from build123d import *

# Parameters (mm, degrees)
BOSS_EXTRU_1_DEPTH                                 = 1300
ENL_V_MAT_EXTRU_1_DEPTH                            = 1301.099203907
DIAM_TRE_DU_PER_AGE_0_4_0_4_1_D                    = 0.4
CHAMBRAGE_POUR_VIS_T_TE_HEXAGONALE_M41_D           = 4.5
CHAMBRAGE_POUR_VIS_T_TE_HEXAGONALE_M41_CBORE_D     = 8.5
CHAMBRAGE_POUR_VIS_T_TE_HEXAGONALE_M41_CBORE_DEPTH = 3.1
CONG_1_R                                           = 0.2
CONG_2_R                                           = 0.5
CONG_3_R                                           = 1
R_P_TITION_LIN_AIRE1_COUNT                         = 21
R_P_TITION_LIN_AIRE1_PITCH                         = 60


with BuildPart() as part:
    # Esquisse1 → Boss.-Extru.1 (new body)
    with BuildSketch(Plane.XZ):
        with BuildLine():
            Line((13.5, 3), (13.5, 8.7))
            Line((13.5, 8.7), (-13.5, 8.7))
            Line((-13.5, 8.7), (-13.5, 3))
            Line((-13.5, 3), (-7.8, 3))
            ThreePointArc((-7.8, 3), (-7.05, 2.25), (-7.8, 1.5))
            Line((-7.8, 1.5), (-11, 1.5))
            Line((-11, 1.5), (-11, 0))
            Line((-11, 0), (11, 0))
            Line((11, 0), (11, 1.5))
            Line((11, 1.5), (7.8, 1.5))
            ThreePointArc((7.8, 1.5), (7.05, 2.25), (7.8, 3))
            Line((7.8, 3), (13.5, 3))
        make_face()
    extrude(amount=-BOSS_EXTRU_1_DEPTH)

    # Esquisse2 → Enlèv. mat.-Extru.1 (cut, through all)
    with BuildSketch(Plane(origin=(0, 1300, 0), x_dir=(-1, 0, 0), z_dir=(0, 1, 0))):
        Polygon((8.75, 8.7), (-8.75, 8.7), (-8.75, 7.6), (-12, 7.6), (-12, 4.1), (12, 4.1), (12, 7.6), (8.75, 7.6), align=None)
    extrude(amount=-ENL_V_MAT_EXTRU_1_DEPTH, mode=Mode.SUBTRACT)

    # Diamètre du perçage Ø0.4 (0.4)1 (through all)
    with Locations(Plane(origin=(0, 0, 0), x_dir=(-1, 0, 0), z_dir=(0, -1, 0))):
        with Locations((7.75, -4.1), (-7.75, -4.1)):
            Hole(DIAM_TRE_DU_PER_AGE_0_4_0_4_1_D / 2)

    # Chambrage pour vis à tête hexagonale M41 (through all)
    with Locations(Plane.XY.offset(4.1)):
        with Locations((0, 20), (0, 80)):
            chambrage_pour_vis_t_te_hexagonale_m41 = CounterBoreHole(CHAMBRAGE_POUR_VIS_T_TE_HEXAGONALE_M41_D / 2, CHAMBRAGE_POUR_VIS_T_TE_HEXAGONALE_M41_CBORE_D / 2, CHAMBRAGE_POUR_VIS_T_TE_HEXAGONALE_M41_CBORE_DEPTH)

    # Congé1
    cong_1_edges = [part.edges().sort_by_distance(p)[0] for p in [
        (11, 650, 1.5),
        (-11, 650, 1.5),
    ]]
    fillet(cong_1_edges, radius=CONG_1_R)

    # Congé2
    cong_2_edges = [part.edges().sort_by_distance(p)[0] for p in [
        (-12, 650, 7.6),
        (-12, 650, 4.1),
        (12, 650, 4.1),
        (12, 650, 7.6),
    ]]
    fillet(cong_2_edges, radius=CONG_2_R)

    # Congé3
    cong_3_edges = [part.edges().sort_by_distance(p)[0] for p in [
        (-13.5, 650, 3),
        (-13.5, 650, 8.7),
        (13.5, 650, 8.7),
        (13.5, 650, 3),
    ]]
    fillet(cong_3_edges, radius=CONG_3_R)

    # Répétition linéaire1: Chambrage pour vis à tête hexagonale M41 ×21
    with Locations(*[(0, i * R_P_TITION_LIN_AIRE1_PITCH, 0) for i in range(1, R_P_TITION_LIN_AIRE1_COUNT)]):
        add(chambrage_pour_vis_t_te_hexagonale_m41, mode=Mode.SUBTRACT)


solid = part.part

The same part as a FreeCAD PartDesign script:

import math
import FreeCAD as App
import Part
import Sketcher
from FreeCAD import Vector


def edges_at(feature, points):
    """Names of the edges that pass closest to the given points."""
    edges = feature.Shape.Edges
    near = lambda p: min(range(len(edges)), key=lambda i: edges[i].distToShape(Part.Vertex(*p))[0])
    return sorted({f"Edge{near(p) + 1}" for p in points})

doc = App.newDocument("Part")
body = doc.addObject("PartDesign::Body", "Body")

sketch1 = body.newObject("Sketcher::SketchObject", "Sketch")
sketch1.AttachmentSupport = (doc.getObject("XZ_Plane"), [""])
sketch1.MapMode = "FlatFace"
sketch1.addGeometry(Part.LineSegment(Vector(13.5, 3, 0), Vector(13.5, 8.7, 0)), False)
sketch1.addGeometry(Part.LineSegment(Vector(13.5, 8.7, 0), Vector(-13.5, 8.7, 0)), False)
sketch1.addGeometry(Part.LineSegment(Vector(-13.5, 8.7, 0), Vector(-13.5, 3, 0)), False)
sketch1.addGeometry(Part.LineSegment(Vector(-13.5, 3, 0), Vector(-7.8, 3, 0)), False)
sketch1.addGeometry(Part.ArcOfCircle(Part.Circle(Vector(-7.8, 2.2, 0), Vector(0, 0, 1), 0.8), math.radians(-90), math.radians(90)), False)
sketch1.addGeometry(Part.LineSegment(Vector(-7.8, 1.5, 0), Vector(-11, 1.5, 0)), False)
sketch1.addGeometry(Part.LineSegment(Vector(-11, 1.5, 0), Vector(-11, 0, 0)), False)
sketch1.addGeometry(Part.LineSegment(Vector(-11, 0, 0), Vector(11, 0, 0)), False)
sketch1.addGeometry(Part.LineSegment(Vector(11, 0, 0), Vector(11, 1.5, 0)), False)
sketch1.addGeometry(Part.LineSegment(Vector(11, 1.5, 0), Vector(7.8, 1.5, 0)), False)
sketch1.addGeometry(Part.ArcOfCircle(Part.Circle(Vector(7.8, 2.2, 0), Vector(0, 0, 1), 0.8), math.radians(90), math.radians(270)), False)
sketch1.addGeometry(Part.LineSegment(Vector(7.8, 3, 0), Vector(13.5, 3, 0)), False)
sketch1.addConstraint(Sketcher.Constraint("Coincident", 0, 2, 1, 1))
sketch1.addConstraint(Sketcher.Constraint("Coincident", 1, 2, 2, 1))
sketch1.addConstraint(Sketcher.Constraint("Coincident", 2, 2, 3, 1))
sketch1.addConstraint(Sketcher.Constraint("Tangent", 3, 2, 4, 2))
sketch1.addConstraint(Sketcher.Constraint("Tangent", 4, 1, 5, 1))
sketch1.addConstraint(Sketcher.Constraint("Coincident", 5, 2, 6, 1))
sketch1.addConstraint(Sketcher.Constraint("Coincident", 6, 2, 7, 1))
sketch1.addConstraint(Sketcher.Constraint("Coincident", 7, 2, 8, 1))
sketch1.addConstraint(Sketcher.Constraint("Coincident", 8, 2, 9, 1))
sketch1.addConstraint(Sketcher.Constraint("Tangent", 9, 2, 10, 2))
sketch1.addConstraint(Sketcher.Constraint("Tangent", 10, 1, 11, 1))
sketch1.addConstraint(Sketcher.Constraint("Coincident", 11, 2, 0, 1))
sketch1.addConstraint(Sketcher.Constraint("Vertical", 0))
sketch1.addConstraint(Sketcher.Constraint("Horizontal", 1))
sketch1.addConstraint(Sketcher.Constraint("Vertical", 2))
sketch1.addConstraint(Sketcher.Constraint("Horizontal", 3))
sketch1.addConstraint(Sketcher.Constraint("Horizontal", 5))
sketch1.addConstraint(Sketcher.Constraint("Vertical", 6))
sketch1.addConstraint(Sketcher.Constraint("Horizontal", 7))
sketch1.addConstraint(Sketcher.Constraint("Vertical", 8))
sketch1.addConstraint(Sketcher.Constraint("Horizontal", 9))
sketch1.addConstraint(Sketcher.Constraint("Horizontal", 11))
sketch1.addConstraint(Sketcher.Constraint("Equal", 4, 10))
sketch1.addConstraint(Sketcher.Constraint("Symmetric", 6, 2, 7, 2, -1, 1))
sketch1.addConstraint(Sketcher.Constraint("Symmetric", 4, 3, 10, 3, -2))
sketch1.addConstraint(Sketcher.Constraint("Equal", 3, 11))
sketch1.addConstraint(Sketcher.Constraint("Equal", 11, 0))
sketch1.addConstraint(Sketcher.Constraint("DistanceX", 1, 2, 1, 1, 27.0))
sketch1.addConstraint(Sketcher.Constraint("DistanceX", 7, 1, 7, 2, 22.0))
sketch1.addConstraint(Sketcher.Constraint("Radius", 4, 0.75))
sketch1.addConstraint(Sketcher.Constraint("DistanceX", 3, 1, 3, 2, 5.7))
sketch1.addConstraint(Sketcher.Constraint("DistanceY", 6, 2, 6, 1, 1.5))
pad1 = body.newObject("PartDesign::Pad", "Pad")
pad1.Profile = sketch1
pad1.Length = 1300
pad1.Reversed = True

sketch2 = body.newObject("Sketcher::SketchObject", "Sketch001")
sketch2.AttachmentSupport = (doc.getObject("XZ_Plane"), [""])
sketch2.MapMode = "FlatFace"
sketch2.AttachmentOffset = App.Placement(Vector(0, 0, -1300), App.Rotation())
sketch2.addGeometry(Part.LineSegment(Vector(-8.8, 8.7, 0), Vector(8.8, 8.7, 0)), False)
sketch2.addGeometry(Part.LineSegment(Vector(8.8, 8.7, 0), Vector(8.8, 7.6, 0)), False)
sketch2.addGeometry(Part.LineSegment(Vector(8.8, 7.6, 0), Vector(12, 7.6, 0)), False)
sketch2.addGeometry(Part.LineSegment(Vector(12, 7.6, 0), Vector(12, 4.1, 0)), False)
sketch2.addGeometry(Part.LineSegment(Vector(12, 4.1, 0), Vector(-12, 4.1, 0)), False)
sketch2.addGeometry(Part.LineSegment(Vector(-12, 4.1, 0), Vector(-12, 7.6, 0)), False)
sketch2.addGeometry(Part.LineSegment(Vector(-12, 7.6, 0), Vector(-8.8, 7.6, 0)), False)
sketch2.addGeometry(Part.LineSegment(Vector(-8.8, 7.6, 0), Vector(-8.8, 8.7, 0)), False)
sketch2.addConstraint(Sketcher.Constraint("Coincident", 0, 2, 1, 1))
sketch2.addConstraint(Sketcher.Constraint("Coincident", 1, 2, 2, 1))
sketch2.addConstraint(Sketcher.Constraint("Coincident", 2, 2, 3, 1))
sketch2.addConstraint(Sketcher.Constraint("Coincident", 3, 2, 4, 1))
sketch2.addConstraint(Sketcher.Constraint("Coincident", 4, 2, 5, 1))
sketch2.addConstraint(Sketcher.Constraint("Coincident", 5, 2, 6, 1))
sketch2.addConstraint(Sketcher.Constraint("Coincident", 6, 2, 7, 1))
sketch2.addConstraint(Sketcher.Constraint("Coincident", 7, 2, 0, 1))
sketch2.addConstraint(Sketcher.Constraint("Horizontal", 0))
sketch2.addConstraint(Sketcher.Constraint("Vertical", 1))
sketch2.addConstraint(Sketcher.Constraint("Horizontal", 2))
sketch2.addConstraint(Sketcher.Constraint("Vertical", 3))
sketch2.addConstraint(Sketcher.Constraint("Horizontal", 4))
sketch2.addConstraint(Sketcher.Constraint("Vertical", 5))
sketch2.addConstraint(Sketcher.Constraint("Horizontal", 6))
sketch2.addConstraint(Sketcher.Constraint("Vertical", 7))
sketch2.addConstraint(Sketcher.Constraint("Symmetric", 2, 2, 5, 2, -2))
sketch2.addConstraint(Sketcher.Constraint("Equal", 2, 6))
sketch2.addConstraint(Sketcher.Constraint("DistanceX", 4, 2, 4, 1, 24.0))
sketch2.addConstraint(Sketcher.Constraint("DistanceX", 0, 1, 0, 2, 17.5))
sketch2.addConstraint(Sketcher.Constraint("DistanceY", 1, 2, 1, 1, 1.1))
sketch2.addConstraint(Sketcher.Constraint("DistanceY", 3, 2, 3, 1, 3.5))
sketch2.addConstraint(Sketcher.Constraint("DistanceY", -1, 1, 0, 2, 8.7))
pocket1 = body.newObject("PartDesign::Pocket", "Pocket")
pocket1.Profile = sketch2
pocket1.Type = "ThroughAll"
pocket1.Reversed = True

sketch3 = body.newObject("Sketcher::SketchObject", "Sketch002")
sketch3.AttachmentSupport = (doc.getObject("XZ_Plane"), [""])
sketch3.MapMode = "FlatFace"
sketch3.addGeometry(Part.Circle(Vector(-7.75, 4.1, 0), Vector(0, 0, 1), 0.2), False)
sketch3.addGeometry(Part.Circle(Vector(7.75, 4.1, 0), Vector(0, 0, 1), 0.2), False)
sketch3.addConstraint(Sketcher.Constraint("Equal", 0, 1))
sketch3.addConstraint(Sketcher.Constraint("Symmetric", 0, 3, 1, 3, -2))
sketch3.addConstraint(Sketcher.Constraint("Diameter", 0, 0.4))
sketch3.addConstraint(Sketcher.Constraint("DistanceY", -1, 1, 0, 3, 4.1))
sketch3.addConstraint(Sketcher.Constraint("DistanceX", 0, 3, 1, 3, 15.5))
doc.recompute()
hole = body.newObject("PartDesign::Hole", "Hole")
hole.Profile = sketch3
hole.ThreadType = "None"
hole.Diameter = 0.4
hole.DepthType = "ThroughAll"

sketch4 = body.newObject("Sketcher::SketchObject", "Sketch003")
sketch4.AttachmentSupport = (doc.getObject("XY_Plane"), [""])
sketch4.MapMode = "FlatFace"
sketch4.AttachmentOffset = App.Placement(Vector(0, 0, 4.1), App.Rotation())
sketch4.addGeometry(Part.Circle(Vector(0, 20, 0), Vector(0, 0, 1), 2.2), False)
sketch4.addGeometry(Part.Circle(Vector(0, 80, 0), Vector(0, 0, 1), 2.2), False)
sketch4.addConstraint(Sketcher.Constraint("Equal", 0, 1))
sketch4.addConstraint(Sketcher.Constraint("PointOnObject", 0, 3, -2))
sketch4.addConstraint(Sketcher.Constraint("PointOnObject", 1, 3, -2))
sketch4.addConstraint(Sketcher.Constraint("Diameter", 0, 4.5))
sketch4.addConstraint(Sketcher.Constraint("DistanceY", -1, 1, 0, 3, 20.0))
sketch4.addConstraint(Sketcher.Constraint("DistanceY", -1, 1, 1, 3, 80.0))
doc.recompute()
hole2 = body.newObject("PartDesign::Hole", "Hole001")
hole2.Profile = sketch4
hole2.ThreadType = "None"
hole2.Diameter = 4.5
hole2.DepthType = "ThroughAll"
hole2.HoleCutType = "Counterbore"
hole2.HoleCutDiameter = 8.5
hole2.HoleCutDepth = 3.1
doc.recompute()

fillet = body.newObject("PartDesign::Fillet", "Fillet")
fillet.Base = (hole2, edges_at(hole2, [(11, 650, 1.5), (-11, 650, 1.5)]))
fillet.Radius = 0.2
doc.recompute()

fillet2 = body.newObject("PartDesign::Fillet", "Fillet001")
fillet2.Base = (fillet, edges_at(fillet, [
    (-12, 650, 7.6),
    (-12, 650, 4.1),
    (12, 650, 4.1),
    (12, 650, 7.6),
]))
fillet2.Radius = 0.5
doc.recompute()

fillet3 = body.newObject("PartDesign::Fillet", "Fillet002")
fillet3.Base = (fillet2, edges_at(fillet2, [
    (-13.5, 650, 3),
    (-13.5, 650, 8.7),
    (13.5, 650, 8.7),
    (13.5, 650, 3),
]))
fillet3.Radius = 1
doc.recompute()

linearpattern = body.newObject("PartDesign::LinearPattern", "LinearPattern")
linearpattern.Originals = [hole2]
linearpattern.Direction = (doc.getObject("Y_Axis"), [""])
linearpattern.Mode = "offset"
linearpattern.Offset = 60
linearpattern.Occurrences = 21
body.Tip = linearpattern

doc.recompute()
